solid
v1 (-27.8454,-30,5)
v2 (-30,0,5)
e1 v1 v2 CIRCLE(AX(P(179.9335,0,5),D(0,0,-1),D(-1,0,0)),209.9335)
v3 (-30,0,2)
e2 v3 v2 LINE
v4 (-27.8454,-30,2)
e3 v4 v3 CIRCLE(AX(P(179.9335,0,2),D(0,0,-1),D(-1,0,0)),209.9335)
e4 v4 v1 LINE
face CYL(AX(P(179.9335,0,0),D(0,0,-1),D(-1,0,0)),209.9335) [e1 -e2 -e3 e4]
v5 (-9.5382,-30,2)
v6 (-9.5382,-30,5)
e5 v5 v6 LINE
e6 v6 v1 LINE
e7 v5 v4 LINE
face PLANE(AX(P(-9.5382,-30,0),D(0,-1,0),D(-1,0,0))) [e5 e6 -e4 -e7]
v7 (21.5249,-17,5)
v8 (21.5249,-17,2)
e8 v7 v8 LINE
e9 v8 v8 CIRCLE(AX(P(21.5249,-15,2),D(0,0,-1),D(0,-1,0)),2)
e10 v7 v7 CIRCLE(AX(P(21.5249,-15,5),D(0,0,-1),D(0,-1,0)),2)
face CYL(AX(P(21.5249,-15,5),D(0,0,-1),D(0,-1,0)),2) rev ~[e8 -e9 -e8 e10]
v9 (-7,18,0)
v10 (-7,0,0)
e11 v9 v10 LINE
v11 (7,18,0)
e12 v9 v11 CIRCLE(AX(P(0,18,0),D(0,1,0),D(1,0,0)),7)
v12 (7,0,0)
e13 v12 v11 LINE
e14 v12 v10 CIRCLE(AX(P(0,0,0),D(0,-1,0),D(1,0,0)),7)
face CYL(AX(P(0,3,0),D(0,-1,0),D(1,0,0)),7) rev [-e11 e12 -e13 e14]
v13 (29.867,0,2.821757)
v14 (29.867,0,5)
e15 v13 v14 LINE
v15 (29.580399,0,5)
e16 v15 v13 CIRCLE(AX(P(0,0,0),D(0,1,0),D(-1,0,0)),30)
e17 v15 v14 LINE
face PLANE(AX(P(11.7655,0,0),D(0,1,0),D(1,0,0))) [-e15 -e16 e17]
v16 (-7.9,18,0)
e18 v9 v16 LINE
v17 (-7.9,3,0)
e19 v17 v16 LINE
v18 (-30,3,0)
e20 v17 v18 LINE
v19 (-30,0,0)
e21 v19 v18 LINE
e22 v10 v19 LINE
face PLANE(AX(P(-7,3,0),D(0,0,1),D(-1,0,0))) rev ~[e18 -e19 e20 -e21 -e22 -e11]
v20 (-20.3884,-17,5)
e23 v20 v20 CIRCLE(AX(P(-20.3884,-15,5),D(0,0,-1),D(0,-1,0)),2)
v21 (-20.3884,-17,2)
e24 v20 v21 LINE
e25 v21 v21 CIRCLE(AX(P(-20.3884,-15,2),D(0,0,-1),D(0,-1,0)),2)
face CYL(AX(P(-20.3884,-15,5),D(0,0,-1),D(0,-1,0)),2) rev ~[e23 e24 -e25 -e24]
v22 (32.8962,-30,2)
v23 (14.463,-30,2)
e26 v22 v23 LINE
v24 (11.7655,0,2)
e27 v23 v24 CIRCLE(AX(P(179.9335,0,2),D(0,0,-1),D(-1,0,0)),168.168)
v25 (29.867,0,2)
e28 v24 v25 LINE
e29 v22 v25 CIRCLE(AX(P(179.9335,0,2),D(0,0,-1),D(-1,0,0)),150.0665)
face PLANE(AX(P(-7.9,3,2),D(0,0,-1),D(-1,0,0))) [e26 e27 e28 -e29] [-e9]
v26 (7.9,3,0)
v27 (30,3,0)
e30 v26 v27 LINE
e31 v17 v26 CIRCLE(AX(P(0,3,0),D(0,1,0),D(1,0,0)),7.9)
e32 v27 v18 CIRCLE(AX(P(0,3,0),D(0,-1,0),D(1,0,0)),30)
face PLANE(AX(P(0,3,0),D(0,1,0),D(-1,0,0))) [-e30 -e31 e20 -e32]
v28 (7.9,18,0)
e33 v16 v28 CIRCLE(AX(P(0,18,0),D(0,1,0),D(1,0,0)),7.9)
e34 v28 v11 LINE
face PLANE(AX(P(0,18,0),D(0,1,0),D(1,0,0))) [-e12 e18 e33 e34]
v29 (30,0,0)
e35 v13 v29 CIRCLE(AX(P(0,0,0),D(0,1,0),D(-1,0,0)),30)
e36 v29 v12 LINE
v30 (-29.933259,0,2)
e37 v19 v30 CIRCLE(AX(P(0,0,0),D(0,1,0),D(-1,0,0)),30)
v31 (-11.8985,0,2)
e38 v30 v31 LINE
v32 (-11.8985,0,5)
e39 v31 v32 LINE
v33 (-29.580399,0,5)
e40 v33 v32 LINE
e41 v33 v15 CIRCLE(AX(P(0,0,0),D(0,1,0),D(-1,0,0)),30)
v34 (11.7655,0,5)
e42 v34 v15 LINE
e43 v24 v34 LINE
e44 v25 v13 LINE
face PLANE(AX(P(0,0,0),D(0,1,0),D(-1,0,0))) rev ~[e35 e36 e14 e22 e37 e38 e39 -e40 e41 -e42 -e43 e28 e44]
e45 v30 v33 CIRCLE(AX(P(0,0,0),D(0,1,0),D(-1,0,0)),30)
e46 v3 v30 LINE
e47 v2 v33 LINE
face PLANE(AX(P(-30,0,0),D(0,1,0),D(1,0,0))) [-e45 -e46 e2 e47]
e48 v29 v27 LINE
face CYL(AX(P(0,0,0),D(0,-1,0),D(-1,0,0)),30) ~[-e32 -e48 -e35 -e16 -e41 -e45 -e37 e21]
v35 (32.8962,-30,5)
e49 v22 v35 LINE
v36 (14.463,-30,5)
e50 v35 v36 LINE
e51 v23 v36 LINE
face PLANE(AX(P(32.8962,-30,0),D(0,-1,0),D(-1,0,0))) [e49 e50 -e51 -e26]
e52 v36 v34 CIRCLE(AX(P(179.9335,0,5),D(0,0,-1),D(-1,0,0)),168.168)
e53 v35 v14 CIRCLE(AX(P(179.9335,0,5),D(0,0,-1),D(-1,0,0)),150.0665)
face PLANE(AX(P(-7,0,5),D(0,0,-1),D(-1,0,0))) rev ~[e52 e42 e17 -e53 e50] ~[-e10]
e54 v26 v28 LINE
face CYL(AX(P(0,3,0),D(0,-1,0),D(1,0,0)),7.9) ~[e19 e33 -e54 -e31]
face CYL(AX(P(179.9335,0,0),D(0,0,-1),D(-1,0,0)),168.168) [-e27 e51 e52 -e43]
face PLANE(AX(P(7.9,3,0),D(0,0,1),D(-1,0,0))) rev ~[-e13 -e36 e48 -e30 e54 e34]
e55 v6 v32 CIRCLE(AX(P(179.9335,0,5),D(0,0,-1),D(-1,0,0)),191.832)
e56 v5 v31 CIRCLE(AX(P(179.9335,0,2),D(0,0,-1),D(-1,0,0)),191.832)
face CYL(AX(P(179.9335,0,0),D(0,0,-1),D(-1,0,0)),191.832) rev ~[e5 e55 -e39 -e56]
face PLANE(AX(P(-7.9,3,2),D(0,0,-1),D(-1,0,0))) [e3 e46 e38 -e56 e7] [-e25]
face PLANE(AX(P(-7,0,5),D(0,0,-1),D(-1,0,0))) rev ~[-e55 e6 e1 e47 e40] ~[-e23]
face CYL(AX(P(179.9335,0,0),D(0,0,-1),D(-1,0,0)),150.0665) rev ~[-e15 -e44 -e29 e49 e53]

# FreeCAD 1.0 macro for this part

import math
import FreeCAD as App
import Part
import Sketcher

doc = App.newDocument("Part")
body = doc.addObject("PartDesign::Body", "Body")

# Sketch on XZ plane
sketch1 = doc.addObject("Sketcher::SketchObject", "Sketch")
body.addObject(sketch1)
sketch1.AttachmentSupport = (doc.XZ_Plane, [""])
sketch1.MapMode = "FlatFace"
sketch1.addGeometry(Part.LineSegment(App.Vector(-7, 0, 0), App.Vector(-30, 0, 0)), False)
sketch1.addGeometry(Part.ArcOfCircle(Part.Circle(App.Vector(0, 0, 0), App.Vector(0, 0, 1), 30), math.radians(0), math.radians(180)), False)
sketch1.addGeometry(Part.LineSegment(App.Vector(30, 0, 0), App.Vector(7, 0, 0)), False)
sketch1.addGeometry(Part.ArcOfCircle(Part.Circle(App.Vector(0, 0, 0), App.Vector(0, 0, 1), 7), math.radians(0), math.radians(180)), False)
sketch1.addConstraint(Sketcher.Constraint("Coincident", 0, 2, 1, 2))
sketch1.addConstraint(Sketcher.Constraint("Coincident", 1, 1, 2, 1))
sketch1.addConstraint(Sketcher.Constraint("Coincident", 2, 2, 3, 1))
sketch1.addConstraint(Sketcher.Constraint("Coincident", 3, 2, 0, 1))
sketch1.addConstraint(Sketcher.Constraint("Horizontal", 0))
sketch1.addConstraint(Sketcher.Constraint("Horizontal", 2))
sketch1.addConstraint(Sketcher.Constraint("Coincident", 1, 3, -1, 1))
sketch1.addConstraint(Sketcher.Constraint("Coincident", 3, 3, -1, 1))
sketch1.addConstraint(Sketcher.Constraint("PointOnObject", 0, 2, -1))
sketch1.addConstraint(Sketcher.Constraint("PointOnObject", 1, 1, -1))
sketch1.addConstraint(Sketcher.Constraint("Radius", 1, 30.0))
sketch1.addConstraint(Sketcher.Constraint("Radius", 3, 7.0))
pad1 = doc.addObject("PartDesign::Pad", "Pad")
body.addObject(pad1)
pad1.Profile = sketch1
pad1.Length = 3
pad1.Reversed = True

# Sketch on XZ plane
sketch2 = doc.addObject("Sketcher::SketchObject", "Sketch001")
body.addObject(sketch2)
sketch2.AttachmentSupport = (doc.XZ_Plane, [""])
sketch2.MapMode = "FlatFace"
sketch2.AttachmentOffset = App.Placement(App.Vector(0, 0, -3), App.Rotation())
sketch2.addGeometry(Part.ArcOfCircle(Part.Circle(App.Vector(0, 0, 0), App.Vector(0, 0, 1), 7.9), math.radians(0), math.radians(180)), False)
sketch2.addGeometry(Part.LineSegment(App.Vector(7.9, 0, 0), App.Vector(7, 0, 0)), False)
sketch2.addGeometry(Part.ArcOfCircle(Part.Circle(App.Vector(0, 0, 0), App.Vector(0, 0, 1), 7), math.radians(0), math.radians(180)), False)
sketch2.addGeometry(Part.LineSegment(App.Vector(-7, 0, 0), App.Vector(-7.9, 0, 0)), False)
sketch2.addConstraint(Sketcher.Constraint("Coincident", 0, 1, 1, 1))
sketch2.addConstraint(Sketcher.Constraint("Coincident", 1, 2, 2, 1))
sketch2.addConstraint(Sketcher.Constraint("Coincident", 2, 2, 3, 1))
sketch2.addConstraint(Sketcher.Constraint("Coincident", 3, 2, 0, 2))
sketch2.addConstraint(Sketcher.Constraint("Horizontal", 1))
sketch2.addConstraint(Sketcher.Constraint("Horizontal", 3))
sketch2.addConstraint(Sketcher.Constraint("Coincident", 0, 3, -1, 1))
sketch2.addConstraint(Sketcher.Constraint("Coincident", 2, 3, -1, 1))
sketch2.addConstraint(Sketcher.Constraint("PointOnObject", 0, 1, -1))
sketch2.addConstraint(Sketcher.Constraint("PointOnObject", 2, 2, -1))
sketch2.addConstraint(Sketcher.Constraint("Radius", 0, 7.9))
sketch2.addConstraint(Sketcher.Constraint("Radius", 2, 7.0))
pad2 = doc.addObject("PartDesign::Pad", "Pad001")
body.addObject(pad2)
pad2.Profile = sketch2
pad2.Length = 15
pad2.Reversed = True

# Sketch on XY plane
sketch3 = doc.addObject("Sketcher::SketchObject", "Sketch002")
body.addObject(sketch3)
sketch3.AttachmentSupport = (doc.XY_Plane, [""])
sketch3.MapMode = "FlatFace"
sketch3.addGeometry(Part.LineSegment(App.Vector(-9.5382, -30, 0), App.Vector(-27.8454, -30, 0)), False)
sketch3.addGeometry(Part.ArcOfCircle(Part.Circle(App.Vector(179.9335, 0, 0), App.Vector(0, 0, 1), 209.9335), math.radians(180), math.radians(188.215831)), False)
sketch3.addGeometry(Part.LineSegment(App.Vector(-30, 0, 0), App.Vector(-11.8985, 0, 0)), False)
sketch3.addGeometry(Part.ArcOfCircle(Part.Circle(App.Vector(179.9335, 0, 0), App.Vector(0, 0, 1), 191.832), math.radians(180), math.radians(188.997236)), False)
sketch3.addGeometry(Part.LineSegment(App.Vector(32.8962, -30, 0), App.Vector(14.463, -30, 0)), False)
sketch3.addGeometry(Part.ArcOfCircle(Part.Circle(App.Vector(179.9335, 0, 0), App.Vector(0, 0, 1), 168.168), math.radians(180), math.radians(190.276171)), False)
sketch3.addGeometry(Part.LineSegment(App.Vector(11.7655, 0, 0), App.Vector(29.867, 0, 0)), False)
sketch3.addGeometry(Part.ArcOfCircle(Part.Circle(App.Vector(179.9335, 0, 0), App.Vector(0, 0, 1), 150.0665), math.radians(180), math.radians(191.531773)), False)
sketch3.addConstraint(Sketcher.Constraint("Coincident", 0, 2, 1, 2))
sketch3.addConstraint(Sketcher.Constraint("Coincident", 1, 1, 2, 1))
sketch3.addConstraint(Sketcher.Constraint("Coincident", 2, 2, 3, 1))
sketch3.addConstraint(Sketcher.Constraint("Coincident", 3, 2, 0, 1))
sketch3.addConstraint(Sketcher.Constraint("Coincident", 4, 2, 5, 2))
sketch3.addConstraint(Sketcher.Constraint("Coincident", 5, 1, 6, 1))
sketch3.addConstraint(Sketcher.Constraint("Coincident", 6, 2, 7, 1))
sketch3.addConstraint(Sketcher.Constraint("Coincident", 7, 2, 4, 1))
sketch3.addConstraint(Sketcher.Constraint("Horizontal", 0))
sketch3.addConstraint(Sketcher.Constraint("Horizontal", 2))
sketch3.addConstraint(Sketcher.Constraint("Horizontal", 4))
sketch3.addConstraint(Sketcher.Constraint("Horizontal", 6))
sketch3.addConstraint(Sketcher.Constraint("Coincident", 3, 3, 1, 3))
sketch3.addConstraint(Sketcher.Constraint("Coincident", 5, 3, 1, 3))
sketch3.addConstraint(Sketcher.Constraint("Coincident", 7, 3, 1, 3))
sketch3.addConstraint(Sketcher.Constraint("PointOnObject", 1, 3, -1))
sketch3.addConstraint(Sketcher.Constraint("PointOnObject", 1, 1, -1))
sketch3.addConstraint(Sketcher.Constraint("PointOnObject", 5, 1, -1))
sketch3.addConstraint(Sketcher.Constraint("Horizontal", 3, 2, 4, 2))
sketch3.addConstraint(Sketcher.Constraint("Equal", 2, 6))
sketch3.addConstraint(Sketcher.Constraint("DistanceY", 0, 2, -1, 1, 30.0))
sketch3.addConstraint(Sketcher.Constraint("DistanceX", 1, 1, -1, 1, 30.0))
sketch3.addConstraint(Sketcher.Constraint("Radius", 3, 191.832))
sketch3.addConstraint(Sketcher.Constraint("Radius", 5, 168.168))
sketch3.addConstraint(Sketcher.Constraint("Radius", 1, 209.9335))
pad3 = doc.addObject("PartDesign::Pad", "Pad002")
body.addObject(pad3)
pad3.Profile = sketch3
pad3.Length = 5

# Sketch on XY plane
sketch4 = doc.addObject("Sketcher::SketchObject", "Sketch003")
body.addObject(sketch4)
sketch4.AttachmentSupport = (doc.XY_Plane, [""])
sketch4.MapMode = "FlatFace"
sketch4.addGeometry(Part.ArcOfCircle(Part.Circle(App.Vector(179.9335, 0, 0), App.Vector(0, 0, 1), 209.9335), math.radians(180), math.radians(188.215831)), False)
sketch4.addGeometry(Part.LineSegment(App.Vector(-30, 0, 0), App.Vector(-11.8985, 0, 0)), False)
sketch4.addGeometry(Part.ArcOfCircle(Part.Circle(App.Vector(179.9335, 0, 0), App.Vector(0, 0, 1), 191.832), math.radians(180), math.radians(188.997236)), False)
sketch4.addGeometry(Part.LineSegment(App.Vector(-9.5382, -30, 0), App.Vector(-27.8454, -30, 0)), False)
sketch4.addGeometry(Part.LineSegment(App.Vector(32.8962, -30, 0), App.Vector(14.463, -30, 0)), False)
sketch4.addGeometry(Part.ArcOfCircle(Part.Circle(App.Vector(179.9335, 0, 0), App.Vector(0, 0, 1), 168.168), math.radians(180), math.radians(190.276171)), False)
sketch4.addGeometry(Part.LineSegment(App.Vector(11.7655, 0, 0), App.Vector(29.867, 0, 0)), False)
sketch4.addGeometry(Part.ArcOfCircle(Part.Circle(App.Vector(179.9335, 0, 0), App.Vector(0, 0, 1), 150.0665), math.radians(180), math.radians(191.531773)), False)
sketch4.addConstraint(Sketcher.Constraint("Coincident", 0, 1, 1, 1))
sketch4.addConstraint(Sketcher.Constraint("Coincident", 1, 2, 2, 1))
sketch4.addConstraint(Sketcher.Constraint("Coincident", 2, 2, 3, 1))
sketch4.addConstraint(Sketcher.Constraint("Coincident", 3, 2, 0, 2))
sketch4.addConstraint(Sketcher.Constraint("Coincident", 4, 2, 5, 2))
sketch4.addConstraint(Sketcher.Constraint("Coincident", 5, 1, 6, 1))
sketch4.addConstraint(Sketcher.Constraint("Coincident", 6, 2, 7, 1))
sketch4.addConstraint(Sketcher.Constraint("Coincident", 7, 2, 4, 1))
sketch4.addConstraint(Sketcher.Constraint("Horizontal", 1))
sketch4.addConstraint(Sketcher.Constraint("Horizontal", 3))
sketch4.addConstraint(Sketcher.Constraint("Horizontal", 4))
sketch4.addConstraint(Sketcher.Constraint("Horizontal", 6))
sketch4.addConstraint(Sketcher.Constraint("Coincident", 2, 3, 0, 3))
sketch4.addConstraint(Sketcher.Constraint("Coincident", 5, 3, 0, 3))
sketch4.addConstraint(Sketcher.Constraint("Coincident", 7, 3, 0, 3))
sketch4.addConstraint(Sketcher.Constraint("PointOnObject", 0, 3, -1))
sketch4.addConstraint(Sketcher.Constraint("PointOnObject", 0, 1, -1))
sketch4.addConstraint(Sketcher.Constraint("PointOnObject", 5, 1, -1))
sketch4.addConstraint(Sketcher.Constraint("Horizontal", 3, 2, 4, 2))
sketch4.addConstraint(Sketcher.Constraint("Equal", 1, 6))
sketch4.addConstraint(Sketcher.Constraint("Radius", 2, 191.832))
sketch4.addConstraint(Sketcher.Constraint("Radius", 5, 168.168))
sketch4.addConstraint(Sketcher.Constraint("Radius", 0, 209.9335))
sketch4.addConstraint(Sketcher.Constraint("DistanceX", 0, 1, -1, 1, 30.0))
sketch4.addConstraint(Sketcher.Constraint("DistanceY", 2, 2, -1, 1, 30.0))
pocket1 = doc.addObject("PartDesign::Pocket", "Pocket")
body.addObject(pocket1)
pocket1.Profile = sketch4
pocket1.Length = 2
pocket1.Reversed = True

# Sketch on XY plane
sketch5 = doc.addObject("Sketcher::SketchObject", "Sketch004")
body.addObject(sketch5)
sketch5.AttachmentSupport = (doc.XY_Plane, [""])
sketch5.MapMode = "FlatFace"
sketch5.AttachmentOffset = App.Placement(App.Vector(0, 0, 5), App.Rotation())
sketch5.addGeometry(Part.Circle(App.Vector(-20.3884, -15, 0), App.Vector(0, 0, 1), 2), False)
sketch5.addGeometry(Part.Circle(App.Vector(21.5249, -15, 0), App.Vector(0, 0, 1), 2), False)
sketch5.addConstraint(Sketcher.Constraint("Equal", 0, 1))
sketch5.addConstraint(Sketcher.Constraint("Horizontal", 0, 3, 1, 3))
sketch5.addConstraint(Sketcher.Constraint("Diameter", 0, 4.0))
sketch5.addConstraint(Sketcher.Constraint("DistanceY", 0, 3, -1, 1, 15.0))
sketch5.addConstraint(Sketcher.Constraint("DistanceX", -1, 1, 1, 3, 21.525))
sketch5.addConstraint(Sketcher.Constraint("DistanceX", 0, 3, -1, 1, 20.3884))
doc.recompute()
hole = doc.addObject("PartDesign::Hole", "Hole")
body.addObject(hole)
hole.Profile = sketch5
hole.ThreadType = "None"
hole.Diameter = 4
hole.DepthType = "Dimension"
hole.Depth = 10
hole.DrillPoint = "Angled"
hole.DrillPointAngle = 118

doc.recompute()
